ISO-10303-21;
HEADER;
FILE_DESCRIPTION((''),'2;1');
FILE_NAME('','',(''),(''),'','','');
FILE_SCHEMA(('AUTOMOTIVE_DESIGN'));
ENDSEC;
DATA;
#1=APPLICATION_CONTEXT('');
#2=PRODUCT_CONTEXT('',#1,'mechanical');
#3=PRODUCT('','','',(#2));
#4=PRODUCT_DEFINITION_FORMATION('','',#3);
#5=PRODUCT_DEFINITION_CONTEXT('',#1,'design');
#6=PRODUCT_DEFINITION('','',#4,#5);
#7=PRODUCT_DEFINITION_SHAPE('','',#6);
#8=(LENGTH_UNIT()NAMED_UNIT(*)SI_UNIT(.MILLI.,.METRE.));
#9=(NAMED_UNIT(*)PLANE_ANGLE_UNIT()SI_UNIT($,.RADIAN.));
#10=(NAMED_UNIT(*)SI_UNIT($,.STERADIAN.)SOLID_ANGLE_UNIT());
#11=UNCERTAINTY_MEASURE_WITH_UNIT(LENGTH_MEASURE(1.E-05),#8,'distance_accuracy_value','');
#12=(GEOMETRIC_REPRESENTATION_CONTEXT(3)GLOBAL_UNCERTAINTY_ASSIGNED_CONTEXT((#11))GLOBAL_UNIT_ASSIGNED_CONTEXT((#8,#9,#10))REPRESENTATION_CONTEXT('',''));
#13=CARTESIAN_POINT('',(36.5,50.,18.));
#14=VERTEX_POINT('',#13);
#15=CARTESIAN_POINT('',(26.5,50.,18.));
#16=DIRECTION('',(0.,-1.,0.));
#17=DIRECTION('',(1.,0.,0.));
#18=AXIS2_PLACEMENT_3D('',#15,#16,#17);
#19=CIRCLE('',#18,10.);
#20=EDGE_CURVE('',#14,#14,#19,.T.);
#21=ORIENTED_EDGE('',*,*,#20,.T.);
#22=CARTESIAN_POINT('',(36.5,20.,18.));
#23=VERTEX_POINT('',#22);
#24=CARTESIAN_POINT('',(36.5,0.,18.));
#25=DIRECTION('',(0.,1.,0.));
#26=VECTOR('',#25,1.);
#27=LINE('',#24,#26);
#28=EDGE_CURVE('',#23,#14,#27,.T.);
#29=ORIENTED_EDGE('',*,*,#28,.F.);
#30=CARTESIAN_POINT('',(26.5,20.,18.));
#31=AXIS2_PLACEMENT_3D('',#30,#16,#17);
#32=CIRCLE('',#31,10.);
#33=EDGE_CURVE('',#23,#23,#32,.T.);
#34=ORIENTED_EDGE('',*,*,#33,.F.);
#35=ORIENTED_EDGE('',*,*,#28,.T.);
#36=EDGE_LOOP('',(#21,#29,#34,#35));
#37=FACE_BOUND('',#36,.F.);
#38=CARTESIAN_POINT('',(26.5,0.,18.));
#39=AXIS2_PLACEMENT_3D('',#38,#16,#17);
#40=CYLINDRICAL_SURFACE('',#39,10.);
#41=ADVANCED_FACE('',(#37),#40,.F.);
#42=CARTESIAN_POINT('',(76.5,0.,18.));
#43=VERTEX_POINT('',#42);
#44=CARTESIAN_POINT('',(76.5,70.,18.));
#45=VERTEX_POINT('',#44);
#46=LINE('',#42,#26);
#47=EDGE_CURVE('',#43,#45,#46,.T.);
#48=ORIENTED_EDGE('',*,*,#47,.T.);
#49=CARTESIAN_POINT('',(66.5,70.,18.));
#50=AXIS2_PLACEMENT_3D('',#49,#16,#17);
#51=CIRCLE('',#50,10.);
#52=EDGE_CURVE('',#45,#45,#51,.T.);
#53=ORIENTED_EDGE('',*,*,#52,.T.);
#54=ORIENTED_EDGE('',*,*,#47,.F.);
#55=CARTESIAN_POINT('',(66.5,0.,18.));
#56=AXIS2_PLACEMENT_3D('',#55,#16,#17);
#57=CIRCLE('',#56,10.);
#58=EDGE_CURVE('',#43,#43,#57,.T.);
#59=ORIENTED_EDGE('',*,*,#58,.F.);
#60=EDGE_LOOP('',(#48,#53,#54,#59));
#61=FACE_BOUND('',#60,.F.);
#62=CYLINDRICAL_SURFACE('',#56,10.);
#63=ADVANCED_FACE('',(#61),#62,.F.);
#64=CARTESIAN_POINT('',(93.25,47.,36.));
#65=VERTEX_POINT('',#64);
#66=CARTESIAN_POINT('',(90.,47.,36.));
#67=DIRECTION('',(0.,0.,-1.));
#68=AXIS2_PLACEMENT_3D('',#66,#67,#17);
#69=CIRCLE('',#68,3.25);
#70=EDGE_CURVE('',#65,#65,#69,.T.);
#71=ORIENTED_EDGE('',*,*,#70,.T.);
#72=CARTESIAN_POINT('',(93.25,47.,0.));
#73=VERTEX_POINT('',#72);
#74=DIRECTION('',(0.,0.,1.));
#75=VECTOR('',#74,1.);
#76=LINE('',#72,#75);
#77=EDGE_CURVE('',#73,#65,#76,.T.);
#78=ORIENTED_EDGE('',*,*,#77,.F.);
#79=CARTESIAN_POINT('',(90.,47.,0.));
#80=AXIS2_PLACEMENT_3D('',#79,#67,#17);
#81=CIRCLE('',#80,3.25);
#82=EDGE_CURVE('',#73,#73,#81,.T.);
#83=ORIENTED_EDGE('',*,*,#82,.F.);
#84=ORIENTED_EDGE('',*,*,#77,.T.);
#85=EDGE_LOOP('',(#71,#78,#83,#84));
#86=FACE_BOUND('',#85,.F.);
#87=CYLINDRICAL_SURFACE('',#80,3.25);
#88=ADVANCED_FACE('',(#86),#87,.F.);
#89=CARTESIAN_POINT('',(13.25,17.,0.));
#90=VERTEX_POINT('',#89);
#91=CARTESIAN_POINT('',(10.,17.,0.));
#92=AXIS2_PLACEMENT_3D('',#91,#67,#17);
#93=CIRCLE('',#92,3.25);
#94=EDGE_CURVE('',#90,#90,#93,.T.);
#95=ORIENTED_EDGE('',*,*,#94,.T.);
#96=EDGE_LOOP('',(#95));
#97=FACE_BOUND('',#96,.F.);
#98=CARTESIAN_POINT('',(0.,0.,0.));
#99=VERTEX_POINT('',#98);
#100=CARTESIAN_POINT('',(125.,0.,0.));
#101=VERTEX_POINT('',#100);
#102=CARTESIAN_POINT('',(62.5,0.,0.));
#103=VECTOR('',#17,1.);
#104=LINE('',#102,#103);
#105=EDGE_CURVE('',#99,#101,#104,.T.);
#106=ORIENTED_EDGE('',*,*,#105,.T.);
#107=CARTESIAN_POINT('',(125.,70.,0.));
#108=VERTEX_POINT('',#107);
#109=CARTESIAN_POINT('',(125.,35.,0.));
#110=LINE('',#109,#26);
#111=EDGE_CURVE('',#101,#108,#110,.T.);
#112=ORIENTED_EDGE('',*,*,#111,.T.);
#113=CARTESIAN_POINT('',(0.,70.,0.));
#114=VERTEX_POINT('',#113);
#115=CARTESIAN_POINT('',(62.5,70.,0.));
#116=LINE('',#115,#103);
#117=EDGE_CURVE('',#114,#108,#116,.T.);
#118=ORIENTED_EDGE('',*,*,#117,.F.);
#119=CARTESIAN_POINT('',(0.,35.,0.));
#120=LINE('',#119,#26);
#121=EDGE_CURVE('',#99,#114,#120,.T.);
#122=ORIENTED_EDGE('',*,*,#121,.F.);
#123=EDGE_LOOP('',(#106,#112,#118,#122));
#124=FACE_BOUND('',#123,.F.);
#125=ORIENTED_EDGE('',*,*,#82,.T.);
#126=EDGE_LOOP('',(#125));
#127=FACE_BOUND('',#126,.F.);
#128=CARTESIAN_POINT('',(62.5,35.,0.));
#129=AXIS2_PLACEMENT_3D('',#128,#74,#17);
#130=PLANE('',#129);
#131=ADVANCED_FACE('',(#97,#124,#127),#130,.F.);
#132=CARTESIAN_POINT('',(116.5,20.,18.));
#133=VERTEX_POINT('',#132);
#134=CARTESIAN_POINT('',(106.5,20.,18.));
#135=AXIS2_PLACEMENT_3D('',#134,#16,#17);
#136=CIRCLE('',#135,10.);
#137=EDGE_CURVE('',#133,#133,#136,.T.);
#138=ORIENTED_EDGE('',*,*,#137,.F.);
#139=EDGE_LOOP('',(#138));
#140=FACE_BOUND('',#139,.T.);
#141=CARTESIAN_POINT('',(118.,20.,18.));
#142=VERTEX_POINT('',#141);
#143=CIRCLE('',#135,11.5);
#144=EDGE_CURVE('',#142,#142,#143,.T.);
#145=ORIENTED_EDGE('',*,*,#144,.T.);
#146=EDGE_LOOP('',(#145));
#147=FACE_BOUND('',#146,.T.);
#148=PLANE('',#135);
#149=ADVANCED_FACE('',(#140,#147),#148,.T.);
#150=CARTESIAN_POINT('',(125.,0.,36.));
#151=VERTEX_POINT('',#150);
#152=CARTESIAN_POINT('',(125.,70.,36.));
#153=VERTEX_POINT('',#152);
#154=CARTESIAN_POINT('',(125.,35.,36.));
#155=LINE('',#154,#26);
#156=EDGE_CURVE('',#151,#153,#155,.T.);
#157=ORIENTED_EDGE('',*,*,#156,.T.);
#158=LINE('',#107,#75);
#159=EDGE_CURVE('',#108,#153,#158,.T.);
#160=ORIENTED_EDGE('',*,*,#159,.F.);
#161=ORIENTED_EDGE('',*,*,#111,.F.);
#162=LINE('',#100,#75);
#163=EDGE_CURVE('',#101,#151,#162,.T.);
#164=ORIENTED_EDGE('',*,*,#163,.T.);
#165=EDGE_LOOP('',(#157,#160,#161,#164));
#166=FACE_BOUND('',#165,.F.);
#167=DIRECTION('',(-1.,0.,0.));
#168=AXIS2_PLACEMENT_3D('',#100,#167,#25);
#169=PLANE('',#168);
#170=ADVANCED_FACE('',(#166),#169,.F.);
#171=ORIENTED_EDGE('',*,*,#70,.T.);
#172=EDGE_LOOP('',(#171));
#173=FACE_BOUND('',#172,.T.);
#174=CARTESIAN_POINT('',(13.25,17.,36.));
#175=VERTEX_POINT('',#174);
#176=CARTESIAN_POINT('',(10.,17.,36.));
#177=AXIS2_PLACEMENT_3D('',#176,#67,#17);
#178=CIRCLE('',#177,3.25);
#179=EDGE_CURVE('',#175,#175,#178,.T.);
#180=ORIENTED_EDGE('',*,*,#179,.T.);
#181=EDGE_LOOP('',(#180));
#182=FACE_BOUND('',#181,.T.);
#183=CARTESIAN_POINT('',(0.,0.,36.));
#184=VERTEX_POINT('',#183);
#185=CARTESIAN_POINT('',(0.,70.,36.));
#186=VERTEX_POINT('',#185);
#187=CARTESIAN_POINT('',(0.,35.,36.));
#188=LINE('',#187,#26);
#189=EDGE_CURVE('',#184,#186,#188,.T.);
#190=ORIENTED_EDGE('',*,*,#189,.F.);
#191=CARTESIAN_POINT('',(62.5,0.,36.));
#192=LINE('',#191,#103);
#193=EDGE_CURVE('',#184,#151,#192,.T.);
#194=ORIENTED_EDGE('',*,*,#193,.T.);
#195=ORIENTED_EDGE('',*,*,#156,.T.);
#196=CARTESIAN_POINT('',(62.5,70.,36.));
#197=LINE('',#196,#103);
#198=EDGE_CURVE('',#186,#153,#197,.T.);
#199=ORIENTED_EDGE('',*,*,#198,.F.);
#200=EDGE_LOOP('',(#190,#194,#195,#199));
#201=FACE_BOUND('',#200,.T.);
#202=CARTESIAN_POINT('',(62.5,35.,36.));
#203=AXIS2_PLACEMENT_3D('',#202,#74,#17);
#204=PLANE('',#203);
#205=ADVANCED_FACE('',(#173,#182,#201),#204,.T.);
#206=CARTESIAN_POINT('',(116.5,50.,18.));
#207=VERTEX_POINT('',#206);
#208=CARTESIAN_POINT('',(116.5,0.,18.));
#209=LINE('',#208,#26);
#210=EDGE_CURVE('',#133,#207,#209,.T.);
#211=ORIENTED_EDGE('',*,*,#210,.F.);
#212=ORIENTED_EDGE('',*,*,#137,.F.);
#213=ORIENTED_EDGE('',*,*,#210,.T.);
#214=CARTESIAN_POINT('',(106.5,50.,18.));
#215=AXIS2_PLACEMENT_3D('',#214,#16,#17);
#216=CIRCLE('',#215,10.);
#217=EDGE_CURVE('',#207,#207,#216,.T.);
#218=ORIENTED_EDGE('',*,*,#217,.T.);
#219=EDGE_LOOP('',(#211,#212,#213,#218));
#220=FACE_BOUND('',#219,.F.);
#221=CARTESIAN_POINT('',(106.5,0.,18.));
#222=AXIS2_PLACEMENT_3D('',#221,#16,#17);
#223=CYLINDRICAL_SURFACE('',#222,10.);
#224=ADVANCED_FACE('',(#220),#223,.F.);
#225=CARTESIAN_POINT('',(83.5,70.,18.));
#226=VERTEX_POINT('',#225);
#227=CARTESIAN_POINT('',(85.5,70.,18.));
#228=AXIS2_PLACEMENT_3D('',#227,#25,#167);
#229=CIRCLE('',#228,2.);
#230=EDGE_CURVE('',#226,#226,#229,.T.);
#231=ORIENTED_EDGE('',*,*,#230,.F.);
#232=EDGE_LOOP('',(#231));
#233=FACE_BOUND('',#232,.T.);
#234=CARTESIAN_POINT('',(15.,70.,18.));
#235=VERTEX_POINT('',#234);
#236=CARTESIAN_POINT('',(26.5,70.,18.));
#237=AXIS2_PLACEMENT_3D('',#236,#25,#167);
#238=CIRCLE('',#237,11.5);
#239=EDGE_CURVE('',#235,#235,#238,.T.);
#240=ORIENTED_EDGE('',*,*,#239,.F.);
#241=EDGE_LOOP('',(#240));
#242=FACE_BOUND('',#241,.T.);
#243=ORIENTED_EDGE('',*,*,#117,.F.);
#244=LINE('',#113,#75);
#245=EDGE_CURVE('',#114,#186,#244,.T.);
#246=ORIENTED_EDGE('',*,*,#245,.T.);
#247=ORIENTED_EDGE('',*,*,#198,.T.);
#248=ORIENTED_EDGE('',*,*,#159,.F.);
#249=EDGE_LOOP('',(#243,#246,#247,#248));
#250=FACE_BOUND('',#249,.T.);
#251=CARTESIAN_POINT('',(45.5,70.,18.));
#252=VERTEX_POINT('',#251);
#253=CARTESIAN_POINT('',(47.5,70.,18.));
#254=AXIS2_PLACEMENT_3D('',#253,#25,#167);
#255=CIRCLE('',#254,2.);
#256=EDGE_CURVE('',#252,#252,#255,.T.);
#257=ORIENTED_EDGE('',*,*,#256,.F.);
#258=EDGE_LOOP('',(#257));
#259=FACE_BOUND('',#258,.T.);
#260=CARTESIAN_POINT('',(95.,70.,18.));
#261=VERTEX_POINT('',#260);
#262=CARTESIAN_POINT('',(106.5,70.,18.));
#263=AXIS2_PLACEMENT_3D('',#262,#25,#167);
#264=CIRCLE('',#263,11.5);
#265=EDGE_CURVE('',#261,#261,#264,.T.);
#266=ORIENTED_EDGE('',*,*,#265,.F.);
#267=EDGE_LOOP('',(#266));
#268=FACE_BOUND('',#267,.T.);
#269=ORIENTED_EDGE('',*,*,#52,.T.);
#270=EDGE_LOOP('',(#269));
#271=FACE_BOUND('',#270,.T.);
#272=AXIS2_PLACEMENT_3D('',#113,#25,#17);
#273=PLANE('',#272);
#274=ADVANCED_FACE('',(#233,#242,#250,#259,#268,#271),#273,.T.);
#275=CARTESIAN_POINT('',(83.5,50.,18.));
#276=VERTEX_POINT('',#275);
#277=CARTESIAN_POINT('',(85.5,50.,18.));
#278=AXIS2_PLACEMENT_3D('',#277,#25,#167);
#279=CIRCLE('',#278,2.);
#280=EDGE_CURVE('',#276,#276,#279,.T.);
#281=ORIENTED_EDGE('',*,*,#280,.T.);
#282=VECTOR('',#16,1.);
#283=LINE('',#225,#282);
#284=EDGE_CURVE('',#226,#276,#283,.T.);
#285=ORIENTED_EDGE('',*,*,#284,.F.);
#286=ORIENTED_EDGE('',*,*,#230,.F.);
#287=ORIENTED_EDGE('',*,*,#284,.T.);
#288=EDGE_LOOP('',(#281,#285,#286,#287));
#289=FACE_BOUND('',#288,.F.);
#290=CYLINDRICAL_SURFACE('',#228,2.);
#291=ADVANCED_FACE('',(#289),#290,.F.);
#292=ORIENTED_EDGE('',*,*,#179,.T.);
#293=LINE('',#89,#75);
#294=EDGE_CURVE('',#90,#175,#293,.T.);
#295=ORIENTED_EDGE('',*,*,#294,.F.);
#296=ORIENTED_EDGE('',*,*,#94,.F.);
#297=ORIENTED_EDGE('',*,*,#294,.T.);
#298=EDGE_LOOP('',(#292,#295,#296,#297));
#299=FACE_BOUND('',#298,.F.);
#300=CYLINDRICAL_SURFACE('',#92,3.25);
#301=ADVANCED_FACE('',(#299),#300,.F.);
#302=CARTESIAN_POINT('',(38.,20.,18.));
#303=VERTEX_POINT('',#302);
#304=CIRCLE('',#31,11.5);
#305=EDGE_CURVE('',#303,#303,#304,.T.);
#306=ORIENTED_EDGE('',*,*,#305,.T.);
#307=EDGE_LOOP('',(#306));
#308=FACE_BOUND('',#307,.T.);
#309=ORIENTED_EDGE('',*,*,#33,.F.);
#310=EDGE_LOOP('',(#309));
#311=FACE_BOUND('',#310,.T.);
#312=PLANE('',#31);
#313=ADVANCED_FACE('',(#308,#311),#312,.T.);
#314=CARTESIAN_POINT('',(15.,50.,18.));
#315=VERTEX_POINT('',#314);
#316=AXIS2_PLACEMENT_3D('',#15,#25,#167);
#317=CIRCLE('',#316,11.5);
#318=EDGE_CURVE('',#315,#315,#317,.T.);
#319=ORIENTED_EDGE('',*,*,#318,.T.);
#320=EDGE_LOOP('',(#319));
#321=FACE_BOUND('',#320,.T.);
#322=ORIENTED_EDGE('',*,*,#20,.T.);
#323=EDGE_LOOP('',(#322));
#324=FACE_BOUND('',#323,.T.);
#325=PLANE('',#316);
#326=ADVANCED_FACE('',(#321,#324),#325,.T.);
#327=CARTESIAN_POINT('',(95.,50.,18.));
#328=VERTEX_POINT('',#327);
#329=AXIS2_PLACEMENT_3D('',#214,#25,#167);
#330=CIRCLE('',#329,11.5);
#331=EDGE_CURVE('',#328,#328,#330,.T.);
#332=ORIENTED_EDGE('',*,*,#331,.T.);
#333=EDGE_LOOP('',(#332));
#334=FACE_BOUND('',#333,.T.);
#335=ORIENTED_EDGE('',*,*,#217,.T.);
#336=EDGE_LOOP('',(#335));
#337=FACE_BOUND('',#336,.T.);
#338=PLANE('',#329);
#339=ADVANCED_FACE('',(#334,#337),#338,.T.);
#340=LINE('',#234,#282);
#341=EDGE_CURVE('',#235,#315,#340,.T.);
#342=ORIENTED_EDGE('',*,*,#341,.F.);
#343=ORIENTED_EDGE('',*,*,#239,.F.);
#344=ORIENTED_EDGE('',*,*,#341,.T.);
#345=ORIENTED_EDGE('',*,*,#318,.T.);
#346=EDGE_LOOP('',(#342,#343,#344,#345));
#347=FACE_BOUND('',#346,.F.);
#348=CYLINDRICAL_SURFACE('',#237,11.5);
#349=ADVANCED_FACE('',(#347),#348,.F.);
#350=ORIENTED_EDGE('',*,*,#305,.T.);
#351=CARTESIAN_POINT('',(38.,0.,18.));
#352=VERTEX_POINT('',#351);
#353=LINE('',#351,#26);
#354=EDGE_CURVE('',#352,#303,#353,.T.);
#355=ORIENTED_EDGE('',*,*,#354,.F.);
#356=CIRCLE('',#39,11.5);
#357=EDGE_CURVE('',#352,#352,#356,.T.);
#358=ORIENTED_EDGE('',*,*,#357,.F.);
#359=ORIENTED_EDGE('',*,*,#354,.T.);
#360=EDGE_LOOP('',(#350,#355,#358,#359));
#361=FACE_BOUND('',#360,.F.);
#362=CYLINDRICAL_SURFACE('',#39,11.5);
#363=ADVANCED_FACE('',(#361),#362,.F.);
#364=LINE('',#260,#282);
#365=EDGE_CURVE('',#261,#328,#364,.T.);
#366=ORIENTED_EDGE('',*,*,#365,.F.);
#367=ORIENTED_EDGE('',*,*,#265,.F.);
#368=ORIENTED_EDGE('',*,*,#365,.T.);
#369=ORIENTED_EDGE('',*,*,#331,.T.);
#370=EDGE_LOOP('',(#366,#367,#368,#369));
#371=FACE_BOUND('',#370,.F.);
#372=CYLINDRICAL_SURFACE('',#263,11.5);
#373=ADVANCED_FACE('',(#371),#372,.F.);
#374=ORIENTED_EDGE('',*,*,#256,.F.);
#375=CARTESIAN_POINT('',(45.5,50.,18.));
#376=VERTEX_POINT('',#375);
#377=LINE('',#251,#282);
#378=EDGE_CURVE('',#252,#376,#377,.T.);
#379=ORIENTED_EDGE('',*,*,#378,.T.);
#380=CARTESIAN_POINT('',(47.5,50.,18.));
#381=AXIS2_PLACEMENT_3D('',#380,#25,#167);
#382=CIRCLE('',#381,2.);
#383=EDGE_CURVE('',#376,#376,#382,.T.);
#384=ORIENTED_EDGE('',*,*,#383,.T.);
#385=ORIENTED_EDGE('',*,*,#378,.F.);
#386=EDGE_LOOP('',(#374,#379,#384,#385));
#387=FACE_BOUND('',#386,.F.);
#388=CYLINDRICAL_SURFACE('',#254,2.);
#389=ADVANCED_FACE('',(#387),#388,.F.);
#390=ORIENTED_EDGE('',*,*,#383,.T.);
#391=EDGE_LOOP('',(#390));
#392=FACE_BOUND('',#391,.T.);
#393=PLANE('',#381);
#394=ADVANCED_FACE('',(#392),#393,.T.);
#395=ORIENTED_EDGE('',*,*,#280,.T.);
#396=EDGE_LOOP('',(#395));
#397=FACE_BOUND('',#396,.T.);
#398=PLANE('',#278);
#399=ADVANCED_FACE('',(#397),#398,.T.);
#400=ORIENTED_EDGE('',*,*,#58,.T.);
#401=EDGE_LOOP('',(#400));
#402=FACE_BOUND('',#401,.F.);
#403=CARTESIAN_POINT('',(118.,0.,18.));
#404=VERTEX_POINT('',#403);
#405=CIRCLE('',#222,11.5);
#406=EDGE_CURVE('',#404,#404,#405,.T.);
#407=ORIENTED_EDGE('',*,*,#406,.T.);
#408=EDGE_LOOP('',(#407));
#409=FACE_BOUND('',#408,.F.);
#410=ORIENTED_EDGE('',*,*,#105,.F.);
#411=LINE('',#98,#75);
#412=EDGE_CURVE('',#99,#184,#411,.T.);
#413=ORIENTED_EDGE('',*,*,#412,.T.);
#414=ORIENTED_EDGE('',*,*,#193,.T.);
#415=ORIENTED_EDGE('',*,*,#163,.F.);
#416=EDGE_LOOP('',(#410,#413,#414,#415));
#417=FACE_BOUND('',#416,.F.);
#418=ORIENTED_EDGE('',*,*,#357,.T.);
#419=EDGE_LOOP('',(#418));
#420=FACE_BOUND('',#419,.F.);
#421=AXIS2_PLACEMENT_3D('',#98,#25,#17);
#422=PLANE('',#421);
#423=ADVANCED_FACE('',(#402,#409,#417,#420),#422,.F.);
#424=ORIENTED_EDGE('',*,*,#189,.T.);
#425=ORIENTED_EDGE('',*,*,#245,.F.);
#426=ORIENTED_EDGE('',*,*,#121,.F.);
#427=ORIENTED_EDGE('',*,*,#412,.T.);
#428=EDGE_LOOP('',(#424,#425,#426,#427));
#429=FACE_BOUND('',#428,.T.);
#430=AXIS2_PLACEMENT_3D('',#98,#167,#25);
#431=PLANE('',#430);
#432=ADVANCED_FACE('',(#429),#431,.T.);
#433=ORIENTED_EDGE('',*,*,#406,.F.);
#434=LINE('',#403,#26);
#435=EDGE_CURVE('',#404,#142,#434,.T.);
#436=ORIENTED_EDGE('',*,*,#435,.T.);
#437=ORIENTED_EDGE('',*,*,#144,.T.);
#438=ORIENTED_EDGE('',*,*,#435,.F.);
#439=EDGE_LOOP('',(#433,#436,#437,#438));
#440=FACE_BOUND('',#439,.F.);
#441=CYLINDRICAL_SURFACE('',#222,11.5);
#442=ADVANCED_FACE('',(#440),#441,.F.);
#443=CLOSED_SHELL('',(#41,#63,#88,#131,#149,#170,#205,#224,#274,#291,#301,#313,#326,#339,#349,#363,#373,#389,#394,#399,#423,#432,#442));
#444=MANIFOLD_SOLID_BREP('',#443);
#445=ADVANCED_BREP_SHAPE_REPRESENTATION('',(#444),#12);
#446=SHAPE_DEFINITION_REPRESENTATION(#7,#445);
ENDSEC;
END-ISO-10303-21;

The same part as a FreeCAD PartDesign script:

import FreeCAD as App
import Part
import Sketcher

V = App.Vector
Q = App.Units.Quantity

doc = App.newDocument("Part")
body = doc.addObject("PartDesign::Body", "Body")

sketch1 = body.newObject("Sketcher::SketchObject", "Sketch")
sketch1.AttachmentSupport = (doc.getObject("XY_Plane"), [""])
sketch1.MapMode = "FlatFace"
sketch1.addGeometry([
    Part.LineSegment(V(0, 70, 0), V(0, 0, 0)),
    Part.LineSegment(V(0, 0, 0), V(125, 0, 0)),
    Part.LineSegment(V(125, 0, 0), V(125, 70, 0)),
    Part.LineSegment(V(125, 70, 0), V(0, 70, 0)),
], False)
sketch1.addConstraint([
    Sketcher.Constraint("Coincident", 0, 2, 1, 1),
    Sketcher.Constraint("Coincident", 1, 2, 2, 1),
    Sketcher.Constraint("Coincident", 2, 2, 3, 1),
    Sketcher.Constraint("Coincident", 3, 2, 0, 1),
    Sketcher.Constraint("Vertical", 0),
    Sketcher.Constraint("Horizontal", 1),
    Sketcher.Constraint("Vertical", 2),
    Sketcher.Constraint("Horizontal", 3),
    Sketcher.Constraint("Coincident", 0, 2, -1, 1),
    Sketcher.Constraint("DistanceX", 1, 1, 1, 2, Q("125 mm")),
    Sketcher.Constraint("DistanceY", 0, 2, 0, 1, Q("70 mm")),
])
pad1 = body.newObject("PartDesign::Pad", "Pad")
pad1.Profile = sketch1
pad1.Length = 36

sketch2 = body.newObject("Sketcher::SketchObject", "Sketch001")
sketch2.AttachmentSupport = (doc.getObject("XZ_Plane"), [""])
sketch2.MapMode = "FlatFace"
sketch2.addGeometry([
    Part.Circle(V(26.5, 18, 0), V(0, 0, 1), 10),
    Part.Circle(V(66.5, 18, 0), V(0, 0, 1), 10),
    Part.Circle(V(106.5, 18, 0), V(0, 0, 1), 10),
], False)
sketch2.addConstraint([
    Sketcher.Constraint("Equal", 0, 1),
    Sketcher.Constraint("Equal", 1, 2),
    Sketcher.Constraint("Horizontal", 0, 3, 1, 3),
    Sketcher.Constraint("Horizontal", 1, 3, 2, 3),
    Sketcher.Constraint("Diameter", 0, Q("20 mm")),
    Sketcher.Constraint("DistanceY", -1, 1, 0, 3, Q("18 mm")),
    Sketcher.Constraint("DistanceX", 0, 3, 1, 3, Q("40 mm")),
    Sketcher.Constraint("DistanceX", 1, 3, 2, 3, Q("40 mm")),
    Sketcher.Constraint("DistanceX", -1, 1, 0, 3, Q("26.5 mm")),
])
pocket1 = body.newObject("PartDesign::Pocket", "Pocket")
pocket1.Profile = sketch2
pocket1.Type = "ThroughAll"

sketch3 = body.newObject("Sketcher::SketchObject", "Sketch002")
sketch3.AttachmentSupport = (doc.getObject("XZ_Plane"), [""])
sketch3.MapMode = "FlatFace"
sketch3.addGeometry([
    Part.Circle(V(26.5, 18, 0), V(0, 0, 1), 11.5),
    Part.Circle(V(106.5, 18, 0), V(0, 0, 1), 11.5),
], False)
sketch3.addConstraint([
    Sketcher.Constraint("Equal", 0, 1),
    Sketcher.Constraint("Horizontal", 0, 3, 1, 3),
    Sketcher.Constraint("Diameter", 0, Q("23 mm")),
    Sketcher.Constraint("DistanceY", -1, 1, 0, 3, Q("18 mm")),
    Sketcher.Constraint("DistanceX", 0, 3, 1, 3, Q("80 mm")),
    Sketcher.Constraint("DistanceX", -1, 1, 0, 3, Q("26.5 mm")),
])
pocket2 = body.newObject("PartDesign::Pocket", "Pocket001")
pocket2.Profile = sketch3
pocket2.Length = 20

sketch4 = body.newObject("Sketcher::SketchObject", "Sketch003")
sketch4.AttachmentSupport = (doc.getObject("XZ_Plane"), [""])
sketch4.MapMode = "FlatFace"
sketch4.AttachmentOffset = App.Placement(V(0, 0, -70), App.Rotation())
sketch4.addGeometry([
    Part.Circle(V(106.5, 18, 0), V(0, 0, 1), 11.5),
    Part.Circle(V(26.5, 18, 0), V(0, 0, 1), 11.5),
], False)
sketch4.addConstraint([
    Sketcher.Constraint("Equal", 0, 1),
    Sketcher.Constraint("Horizontal", 0, 3, 1, 3),
    Sketcher.Constraint("Diameter", 0, Q("23 mm")),
    Sketcher.Constraint("DistanceY", -1, 1, 0, 3, Q("18 mm")),
    Sketcher.Constraint("DistanceX", 1, 3, 0, 3, Q("80 mm")),
    Sketcher.Constraint("DistanceX", -1, 1, 0, 3, Q("106.5 mm")),
])
pocket3 = body.newObject("PartDesign::Pocket", "Pocket002")
pocket3.Profile = sketch4
pocket3.Length = 20
pocket3.Reversed = True

sketch5 = body.newObject("Sketcher::SketchObject", "Sketch004")
sketch5.AttachmentSupport = (doc.getObject("XY_Plane"), [""])
sketch5.MapMode = "FlatFace"
sketch5.addGeometry([
    Part.Circle(V(10, 17, 0), V(0, 0, 1), 3.25),
    Part.Circle(V(90, 47, 0), V(0, 0, 1), 3.25),
], False)
sketch5.addConstraint([
    Sketcher.Constraint("Equal", 0, 1),
    Sketcher.Constraint("Diameter", 0, Q("6.5 mm")),
    Sketcher.Constraint("DistanceX", -1, 1, 0, 3, Q("10 mm")),
    Sketcher.Constraint("DistanceY", -1, 1, 0, 3, Q("17 mm")),
    Sketcher.Constraint("DistanceX", -1, 1, 1, 3, Q("90 mm")),
    Sketcher.Constraint("DistanceY", -1, 1, 1, 3, Q("47 mm")),
])
pocket4 = body.newObject("PartDesign::Pocket", "Pocket003")
pocket4.Profile = sketch5
pocket4.Type = "ThroughAll"
pocket4.Reversed = True

sketch6 = body.newObject("Sketcher::SketchObject", "Sketch005")
sketch6.AttachmentSupport = (doc.getObject("XZ_Plane"), [""])
sketch6.MapMode = "FlatFace"
sketch6.AttachmentOffset = App.Placement(V(0, 0, -70), App.Rotation())
sketch6.addGeometry([
    Part.Circle(V(85.5, 18, 0), V(0, 0, 1), 2),
    Part.Circle(V(47.5, 18, 0), V(0, 0, 1), 2),
], False)
sketch6.addConstraint([
    Sketcher.Constraint("Equal", 0, 1),
    Sketcher.Constraint("Horizontal", 0, 3, 1, 3),
    Sketcher.Constraint("Diameter", 0, Q("4 mm")),
    Sketcher.Constraint("DistanceY", -1, 1, 0, 3, Q("18 mm")),
    Sketcher.Constraint("DistanceX", 1, 3, 0, 3, Q("38 mm")),
    Sketcher.Constraint("DistanceX", -1, 1, 0, 3, Q("85.5 mm")),
])
pocket5 = body.newObject("PartDesign::Pocket", "Pocket004")
pocket5.Profile = sketch6
pocket5.Length = 20
pocket5.Reversed = True

doc.recompute()
